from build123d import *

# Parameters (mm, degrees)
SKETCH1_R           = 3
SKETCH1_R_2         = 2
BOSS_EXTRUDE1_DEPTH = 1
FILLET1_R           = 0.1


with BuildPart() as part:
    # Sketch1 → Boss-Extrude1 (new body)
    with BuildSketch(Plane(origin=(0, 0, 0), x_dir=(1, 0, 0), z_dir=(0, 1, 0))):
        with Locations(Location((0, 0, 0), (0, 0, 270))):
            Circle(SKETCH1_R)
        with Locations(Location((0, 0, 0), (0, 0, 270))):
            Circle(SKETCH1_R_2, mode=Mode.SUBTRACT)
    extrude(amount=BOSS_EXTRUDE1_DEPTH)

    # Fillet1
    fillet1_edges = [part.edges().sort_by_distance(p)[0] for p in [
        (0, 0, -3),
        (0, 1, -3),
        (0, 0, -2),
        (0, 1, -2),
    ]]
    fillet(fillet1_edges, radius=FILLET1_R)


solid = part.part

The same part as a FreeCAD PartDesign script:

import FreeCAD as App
import Part
import Sketcher


def edges_at(feature, points):
    """Names of the edges that pass closest to the given points."""
    edges = feature.Shape.Edges
    near = lambda p: min(range(len(edges)), key=lambda i: edges[i].distToShape(Part.Vertex(*p))[0])
    return sorted({f"Edge{near(p) + 1}" for p in points})

doc = App.newDocument("Part")
body = doc.addObject("PartDesign::Body", "Body")

# Sketch on XZ plane
sketch1 = doc.addObject("Sketcher::SketchObject", "Sketch")
body.addObject(sketch1)
sketch1.AttachmentSupport = (doc.XZ_Plane, [""])
sketch1.MapMode = "FlatFace"
sketch1.addGeometry(Part.Circle(App.Vector(0, 0, 0), App.Vector(0, 0, 1), 3), False)
sketch1.addGeometry(Part.Circle(App.Vector(0, 0, 0), App.Vector(0, 0, 1), 2), False)
sketch1.addConstraint(Sketcher.Constraint("Coincident", 0, 3, -1, 1))
sketch1.addConstraint(Sketcher.Constraint("Coincident", 1, 3, -1, 1))
sketch1.addConstraint(Sketcher.Constraint("Diameter", 0, 6.0))
sketch1.addConstraint(Sketcher.Constraint("Diameter", 1, 4.0))
pad1 = doc.addObject("PartDesign::Pad", "Pad")
body.addObject(pad1)
pad1.Profile = sketch1
pad1.Length = 1
pad1.Reversed = True
doc.recompute()

fillet = doc.addObject("PartDesign::Fillet", "Fillet")
body.addObject(fillet)
fillet.Base = (pad1, edges_at(pad1, [
    (0, 0, -3),
    (0, 1, -3),
    (0, 0, -2),
    (0, 1, -2),
]))
fillet.Radius = 0.1

doc.recompute()
